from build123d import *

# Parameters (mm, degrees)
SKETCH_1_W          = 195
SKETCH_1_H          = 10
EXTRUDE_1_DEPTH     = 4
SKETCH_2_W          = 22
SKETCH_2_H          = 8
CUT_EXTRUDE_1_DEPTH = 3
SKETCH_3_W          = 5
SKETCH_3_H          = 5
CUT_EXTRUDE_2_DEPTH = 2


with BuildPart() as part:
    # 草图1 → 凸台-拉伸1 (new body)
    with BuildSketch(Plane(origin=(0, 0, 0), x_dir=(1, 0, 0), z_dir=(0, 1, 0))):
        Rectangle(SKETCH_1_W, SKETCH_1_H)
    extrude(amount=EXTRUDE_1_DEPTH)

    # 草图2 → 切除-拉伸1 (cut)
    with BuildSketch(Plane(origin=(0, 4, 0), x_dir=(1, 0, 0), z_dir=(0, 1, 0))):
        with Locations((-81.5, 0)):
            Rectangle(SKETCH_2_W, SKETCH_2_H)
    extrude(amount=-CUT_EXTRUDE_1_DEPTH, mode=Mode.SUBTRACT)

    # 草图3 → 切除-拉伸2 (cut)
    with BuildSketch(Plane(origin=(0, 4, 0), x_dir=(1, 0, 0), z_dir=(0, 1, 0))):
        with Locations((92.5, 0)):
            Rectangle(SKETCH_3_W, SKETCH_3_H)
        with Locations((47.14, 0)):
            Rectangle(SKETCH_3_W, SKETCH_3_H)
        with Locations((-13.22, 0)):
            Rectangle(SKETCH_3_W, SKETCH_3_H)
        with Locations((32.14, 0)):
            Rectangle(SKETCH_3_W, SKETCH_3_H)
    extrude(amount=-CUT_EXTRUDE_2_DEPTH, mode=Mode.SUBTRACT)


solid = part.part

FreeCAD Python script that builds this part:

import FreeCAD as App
import Part
import Sketcher
from FreeCAD import Vector
Q = App.Units.Quantity

doc = App.newDocument("Part")
body = doc.addObject("PartDesign::Body", "Body")

sketch1 = body.newObject("Sketcher::SketchObject", "Sketch")
sketch1.AttachmentSupport = (doc.getObject("XZ_Plane"), [""])
sketch1.MapMode = "FlatFace"
sketch1.addGeometry(Part.LineSegment(Vector(-98, -5, 0), Vector(-98, 5, 0)), False)
sketch1.addGeometry(Part.LineSegment(Vector(-98, 5, 0), Vector(98, 5, 0)), False)
sketch1.addGeometry(Part.LineSegment(Vector(98, 5, 0), Vector(98, -5, 0)), False)
sketch1.addGeometry(Part.LineSegment(Vector(98, -5, 0), Vector(-98, -5, 0)), False)
sketch1.addConstraint(Sketcher.Constraint("Coincident", 0, 2, 1, 1))
sketch1.addConstraint(Sketcher.Constraint("Coincident", 1, 2, 2, 1))
sketch1.addConstraint(Sketcher.Constraint("Coincident", 2, 2, 3, 1))
sketch1.addConstraint(Sketcher.Constraint("Coincident", 3, 2, 0, 1))
sketch1.addConstraint(Sketcher.Constraint("Vertical", 0))
sketch1.addConstraint(Sketcher.Constraint("Horizontal", 1))
sketch1.addConstraint(Sketcher.Constraint("Vertical", 2))
sketch1.addConstraint(Sketcher.Constraint("Horizontal", 3))
sketch1.addConstraint(Sketcher.Constraint("Symmetric", 0, 2, 2, 2, -1, 1))
sketch1.addConstraint(Sketcher.Constraint("DistanceX", 1, 1, 1, 2, Q("195 mm")))
sketch1.addConstraint(Sketcher.Constraint("DistanceY", 0, 1, 0, 2, Q("10 mm")))
pad1 = body.newObject("PartDesign::Pad", "Pad")
pad1.Profile = sketch1
pad1.Length = 4
pad1.Reversed = True

sketch2 = body.newObject("Sketcher::SketchObject", "Sketch001")
sketch2.AttachmentSupport = (doc.getObject("XZ_Plane"), [""])
sketch2.MapMode = "FlatFace"
sketch2.AttachmentOffset = App.Placement(Vector(0, 0, -4), App.Rotation())
sketch2.addGeometry(Part.LineSegment(Vector(-92, -4, 0), Vector(-92, 4, 0)), False)
sketch2.addGeometry(Part.LineSegment(Vector(-92, 4, 0), Vector(-70, 4, 0)), False)
sketch2.addGeometry(Part.LineSegment(Vector(-70, 4, 0), Vector(-70, -4, 0)), False)
sketch2.addGeometry(Part.LineSegment(Vector(-70, -4, 0), Vector(-92, -4, 0)), False)
sketch2.addConstraint(Sketcher.Constraint("Coincident", 0, 2, 1, 1))
sketch2.addConstraint(Sketcher.Constraint("Coincident", 1, 2, 2, 1))
sketch2.addConstraint(Sketcher.Constraint("Coincident", 2, 2, 3, 1))
sketch2.addConstraint(Sketcher.Constraint("Coincident", 3, 2, 0, 1))
sketch2.addConstraint(Sketcher.Constraint("Vertical", 0))
sketch2.addConstraint(Sketcher.Constraint("Horizontal", 1))
sketch2.addConstraint(Sketcher.Constraint("Vertical", 2))
sketch2.addConstraint(Sketcher.Constraint("Horizontal", 3))
sketch2.addConstraint(Sketcher.Constraint("DistanceX", 1, 1, 1, 2, Q("22 mm")))
sketch2.addConstraint(Sketcher.Constraint("DistanceY", 0, 1, 0, 2, Q("8 mm")))
sketch2.addConstraint(Sketcher.Constraint("DistanceY", -1, 1, 0, 2, Q("4 mm")))
sketch2.addConstraint(Sketcher.Constraint("DistanceX", 0, 2, -1, 1, Q("92.5 mm")))
pocket1 = body.newObject("PartDesign::Pocket", "Pocket")
pocket1.Profile = sketch2
pocket1.Length = 3
pocket1.Reversed = True

sketch3 = body.newObject("Sketcher::SketchObject", "Sketch002")
sketch3.AttachmentSupport = (doc.getObject("XZ_Plane"), [""])
sketch3.MapMode = "FlatFace"
sketch3.AttachmentOffset = App.Placement(Vector(0, 0, -4), App.Rotation())
sketch3.addGeometry(Part.LineSegment(Vector(90, -2, 0), Vector(90, 2, 0)), False)
sketch3.addGeometry(Part.LineSegment(Vector(90, 2, 0), Vector(95, 2, 0)), False)
sketch3.addGeometry(Part.LineSegment(Vector(95, 2, 0), Vector(95, -2, 0)), False)
sketch3.addGeometry(Part.LineSegment(Vector(95, -2, 0), Vector(90, -2, 0)), False)
sketch3.addGeometry(Part.LineSegment(Vector(45, -2, 0), Vector(45, 2, 0)), False)
sketch3.addGeometry(Part.LineSegment(Vector(45, 2, 0), Vector(50, 2, 0)), False)
sketch3.addGeometry(Part.LineSegment(Vector(50, 2, 0), Vector(50, -2, 0)), False)
sketch3.addGeometry(Part.LineSegment(Vector(50, -2, 0), Vector(45, -2, 0)), False)
sketch3.addGeometry(Part.LineSegment(Vector(-16, -2, 0), Vector(-16, 2, 0)), False)
sketch3.addGeometry(Part.LineSegment(Vector(-16, 2, 0), Vector(-11, 2, 0)), False)
sketch3.addGeometry(Part.LineSegment(Vector(-11, 2, 0), Vector(-11, -2, 0)), False)
sketch3.addGeometry(Part.LineSegment(Vector(-11, -2, 0), Vector(-16, -2, 0)), False)
sketch3.addGeometry(Part.LineSegment(Vector(30, -2, 0), Vector(30, 2, 0)), False)
sketch3.addGeometry(Part.LineSegment(Vector(30, 2, 0), Vector(35, 2, 0)), False)
sketch3.addGeometry(Part.LineSegment(Vector(35, 2, 0), Vector(35, -2, 0)), False)
sketch3.addGeometry(Part.LineSegment(Vector(35, -2, 0), Vector(30, -2, 0)), False)
sketch3.addConstraint(Sketcher.Constraint("Coincident", 0, 2, 1, 1))
sketch3.addConstraint(Sketcher.Constraint("Coincident", 1, 2, 2, 1))
sketch3.addConstraint(Sketcher.Constraint("Coincident", 2, 2, 3, 1))
sketch3.addConstraint(Sketcher.Constraint("Coincident", 3, 2, 0, 1))
sketch3.addConstraint(Sketcher.Constraint("Coincident", 4, 2, 5, 1))
sketch3.addConstraint(Sketcher.Constraint("Coincident", 5, 2, 6, 1))
sketch3.addConstraint(Sketcher.Constraint("Coincident", 6, 2, 7, 1))
sketch3.addConstraint(Sketcher.Constraint("Coincident", 7, 2, 4, 1))
sketch3.addConstraint(Sketcher.Constraint("Coincident", 8, 2, 9, 1))
sketch3.addConstraint(Sketcher.Constraint("Coincident", 9, 2, 10, 1))
sketch3.addConstraint(Sketcher.Constraint("Coincident", 10, 2, 11, 1))
sketch3.addConstraint(Sketcher.Constraint("Coincident", 11, 2, 8, 1))
sketch3.addConstraint(Sketcher.Constraint("Coincident", 12, 2, 13, 1))
sketch3.addConstraint(Sketcher.Constraint("Coincident", 13, 2, 14, 1))
sketch3.addConstraint(Sketcher.Constraint("Coincident", 14, 2, 15, 1))
sketch3.addConstraint(Sketcher.Constraint("Coincident", 15, 2, 12, 1))
sketch3.addConstraint(Sketcher.Constraint("Vertical", 0))
sketch3.addConstraint(Sketcher.Constraint("Horizontal", 1))
sketch3.addConstraint(Sketcher.Constraint("Vertical", 2))
sketch3.addConstraint(Sketcher.Constraint("Horizontal", 3))
sketch3.addConstraint(Sketcher.Constraint("Vertical", 4))
sketch3.addConstraint(Sketcher.Constraint("Horizontal", 5))
sketch3.addConstraint(Sketcher.Constraint("Vertical", 6))
sketch3.addConstraint(Sketcher.Constraint("Horizontal", 7))
sketch3.addConstraint(Sketcher.Constraint("Vertical", 8))
sketch3.addConstraint(Sketcher.Constraint("Horizontal", 9))
sketch3.addConstraint(Sketcher.Constraint("Vertical", 10))
sketch3.addConstraint(Sketcher.Constraint("Horizontal", 11))
sketch3.addConstraint(Sketcher.Constraint("Vertical", 12))
sketch3.addConstraint(Sketcher.Constraint("Horizontal", 13))
sketch3.addConstraint(Sketcher.Constraint("Vertical", 14))
sketch3.addConstraint(Sketcher.Constraint("Horizontal", 15))
sketch3.addConstraint(Sketcher.Constraint("Horizontal", 1, 2, 4, 2))
sketch3.addConstraint(Sketcher.Constraint("Horizontal", 3, 2, 6, 2))
sketch3.addConstraint(Sketcher.Constraint("Horizontal", 5, 2, 8, 2))
sketch3.addConstraint(Sketcher.Constraint("Horizontal", 7, 2, 10, 2))
sketch3.addConstraint(Sketcher.Constraint("Horizontal", 9, 2, 12, 2))
sketch3.addConstraint(Sketcher.Constraint("Horizontal", 11, 2, 14, 2))
sketch3.addConstraint(Sketcher.Constraint("Equal", 3, 5))
sketch3.addConstraint(Sketcher.Constraint("Equal", 7, 9))
sketch3.addConstraint(Sketcher.Constraint("Equal", 11, 13))
sketch3.addConstraint(Sketcher.Constraint("Equal", 15, 0))
sketch3.addConstraint(Sketcher.Constraint("DistanceX", 1, 1, 1, 2, Q("5 mm")))
sketch3.addConstraint(Sketcher.Constraint("DistanceX", -1, 1, 0, 2, Q("90 mm")))
sketch3.addConstraint(Sketcher.Constraint("DistanceX", 12, 2, 4, 2, Q("15 mm")))
sketch3.addConstraint(Sketcher.Constraint("DistanceY", -1, 1, 0, 2, Q("2.5 mm")))
sketch3.addConstraint(Sketcher.Constraint("DistanceX", -1, 1, 4, 2, Q("44.64 mm")))
sketch3.addConstraint(Sketcher.Constraint("DistanceX", 8, 2, -1, 1, Q("15.72 mm")))
pocket2 = body.newObject("PartDesign::Pocket", "Pocket001")
pocket2.Profile = sketch3
pocket2.Length = 2
pocket2.Reversed = True

doc.recompute()
